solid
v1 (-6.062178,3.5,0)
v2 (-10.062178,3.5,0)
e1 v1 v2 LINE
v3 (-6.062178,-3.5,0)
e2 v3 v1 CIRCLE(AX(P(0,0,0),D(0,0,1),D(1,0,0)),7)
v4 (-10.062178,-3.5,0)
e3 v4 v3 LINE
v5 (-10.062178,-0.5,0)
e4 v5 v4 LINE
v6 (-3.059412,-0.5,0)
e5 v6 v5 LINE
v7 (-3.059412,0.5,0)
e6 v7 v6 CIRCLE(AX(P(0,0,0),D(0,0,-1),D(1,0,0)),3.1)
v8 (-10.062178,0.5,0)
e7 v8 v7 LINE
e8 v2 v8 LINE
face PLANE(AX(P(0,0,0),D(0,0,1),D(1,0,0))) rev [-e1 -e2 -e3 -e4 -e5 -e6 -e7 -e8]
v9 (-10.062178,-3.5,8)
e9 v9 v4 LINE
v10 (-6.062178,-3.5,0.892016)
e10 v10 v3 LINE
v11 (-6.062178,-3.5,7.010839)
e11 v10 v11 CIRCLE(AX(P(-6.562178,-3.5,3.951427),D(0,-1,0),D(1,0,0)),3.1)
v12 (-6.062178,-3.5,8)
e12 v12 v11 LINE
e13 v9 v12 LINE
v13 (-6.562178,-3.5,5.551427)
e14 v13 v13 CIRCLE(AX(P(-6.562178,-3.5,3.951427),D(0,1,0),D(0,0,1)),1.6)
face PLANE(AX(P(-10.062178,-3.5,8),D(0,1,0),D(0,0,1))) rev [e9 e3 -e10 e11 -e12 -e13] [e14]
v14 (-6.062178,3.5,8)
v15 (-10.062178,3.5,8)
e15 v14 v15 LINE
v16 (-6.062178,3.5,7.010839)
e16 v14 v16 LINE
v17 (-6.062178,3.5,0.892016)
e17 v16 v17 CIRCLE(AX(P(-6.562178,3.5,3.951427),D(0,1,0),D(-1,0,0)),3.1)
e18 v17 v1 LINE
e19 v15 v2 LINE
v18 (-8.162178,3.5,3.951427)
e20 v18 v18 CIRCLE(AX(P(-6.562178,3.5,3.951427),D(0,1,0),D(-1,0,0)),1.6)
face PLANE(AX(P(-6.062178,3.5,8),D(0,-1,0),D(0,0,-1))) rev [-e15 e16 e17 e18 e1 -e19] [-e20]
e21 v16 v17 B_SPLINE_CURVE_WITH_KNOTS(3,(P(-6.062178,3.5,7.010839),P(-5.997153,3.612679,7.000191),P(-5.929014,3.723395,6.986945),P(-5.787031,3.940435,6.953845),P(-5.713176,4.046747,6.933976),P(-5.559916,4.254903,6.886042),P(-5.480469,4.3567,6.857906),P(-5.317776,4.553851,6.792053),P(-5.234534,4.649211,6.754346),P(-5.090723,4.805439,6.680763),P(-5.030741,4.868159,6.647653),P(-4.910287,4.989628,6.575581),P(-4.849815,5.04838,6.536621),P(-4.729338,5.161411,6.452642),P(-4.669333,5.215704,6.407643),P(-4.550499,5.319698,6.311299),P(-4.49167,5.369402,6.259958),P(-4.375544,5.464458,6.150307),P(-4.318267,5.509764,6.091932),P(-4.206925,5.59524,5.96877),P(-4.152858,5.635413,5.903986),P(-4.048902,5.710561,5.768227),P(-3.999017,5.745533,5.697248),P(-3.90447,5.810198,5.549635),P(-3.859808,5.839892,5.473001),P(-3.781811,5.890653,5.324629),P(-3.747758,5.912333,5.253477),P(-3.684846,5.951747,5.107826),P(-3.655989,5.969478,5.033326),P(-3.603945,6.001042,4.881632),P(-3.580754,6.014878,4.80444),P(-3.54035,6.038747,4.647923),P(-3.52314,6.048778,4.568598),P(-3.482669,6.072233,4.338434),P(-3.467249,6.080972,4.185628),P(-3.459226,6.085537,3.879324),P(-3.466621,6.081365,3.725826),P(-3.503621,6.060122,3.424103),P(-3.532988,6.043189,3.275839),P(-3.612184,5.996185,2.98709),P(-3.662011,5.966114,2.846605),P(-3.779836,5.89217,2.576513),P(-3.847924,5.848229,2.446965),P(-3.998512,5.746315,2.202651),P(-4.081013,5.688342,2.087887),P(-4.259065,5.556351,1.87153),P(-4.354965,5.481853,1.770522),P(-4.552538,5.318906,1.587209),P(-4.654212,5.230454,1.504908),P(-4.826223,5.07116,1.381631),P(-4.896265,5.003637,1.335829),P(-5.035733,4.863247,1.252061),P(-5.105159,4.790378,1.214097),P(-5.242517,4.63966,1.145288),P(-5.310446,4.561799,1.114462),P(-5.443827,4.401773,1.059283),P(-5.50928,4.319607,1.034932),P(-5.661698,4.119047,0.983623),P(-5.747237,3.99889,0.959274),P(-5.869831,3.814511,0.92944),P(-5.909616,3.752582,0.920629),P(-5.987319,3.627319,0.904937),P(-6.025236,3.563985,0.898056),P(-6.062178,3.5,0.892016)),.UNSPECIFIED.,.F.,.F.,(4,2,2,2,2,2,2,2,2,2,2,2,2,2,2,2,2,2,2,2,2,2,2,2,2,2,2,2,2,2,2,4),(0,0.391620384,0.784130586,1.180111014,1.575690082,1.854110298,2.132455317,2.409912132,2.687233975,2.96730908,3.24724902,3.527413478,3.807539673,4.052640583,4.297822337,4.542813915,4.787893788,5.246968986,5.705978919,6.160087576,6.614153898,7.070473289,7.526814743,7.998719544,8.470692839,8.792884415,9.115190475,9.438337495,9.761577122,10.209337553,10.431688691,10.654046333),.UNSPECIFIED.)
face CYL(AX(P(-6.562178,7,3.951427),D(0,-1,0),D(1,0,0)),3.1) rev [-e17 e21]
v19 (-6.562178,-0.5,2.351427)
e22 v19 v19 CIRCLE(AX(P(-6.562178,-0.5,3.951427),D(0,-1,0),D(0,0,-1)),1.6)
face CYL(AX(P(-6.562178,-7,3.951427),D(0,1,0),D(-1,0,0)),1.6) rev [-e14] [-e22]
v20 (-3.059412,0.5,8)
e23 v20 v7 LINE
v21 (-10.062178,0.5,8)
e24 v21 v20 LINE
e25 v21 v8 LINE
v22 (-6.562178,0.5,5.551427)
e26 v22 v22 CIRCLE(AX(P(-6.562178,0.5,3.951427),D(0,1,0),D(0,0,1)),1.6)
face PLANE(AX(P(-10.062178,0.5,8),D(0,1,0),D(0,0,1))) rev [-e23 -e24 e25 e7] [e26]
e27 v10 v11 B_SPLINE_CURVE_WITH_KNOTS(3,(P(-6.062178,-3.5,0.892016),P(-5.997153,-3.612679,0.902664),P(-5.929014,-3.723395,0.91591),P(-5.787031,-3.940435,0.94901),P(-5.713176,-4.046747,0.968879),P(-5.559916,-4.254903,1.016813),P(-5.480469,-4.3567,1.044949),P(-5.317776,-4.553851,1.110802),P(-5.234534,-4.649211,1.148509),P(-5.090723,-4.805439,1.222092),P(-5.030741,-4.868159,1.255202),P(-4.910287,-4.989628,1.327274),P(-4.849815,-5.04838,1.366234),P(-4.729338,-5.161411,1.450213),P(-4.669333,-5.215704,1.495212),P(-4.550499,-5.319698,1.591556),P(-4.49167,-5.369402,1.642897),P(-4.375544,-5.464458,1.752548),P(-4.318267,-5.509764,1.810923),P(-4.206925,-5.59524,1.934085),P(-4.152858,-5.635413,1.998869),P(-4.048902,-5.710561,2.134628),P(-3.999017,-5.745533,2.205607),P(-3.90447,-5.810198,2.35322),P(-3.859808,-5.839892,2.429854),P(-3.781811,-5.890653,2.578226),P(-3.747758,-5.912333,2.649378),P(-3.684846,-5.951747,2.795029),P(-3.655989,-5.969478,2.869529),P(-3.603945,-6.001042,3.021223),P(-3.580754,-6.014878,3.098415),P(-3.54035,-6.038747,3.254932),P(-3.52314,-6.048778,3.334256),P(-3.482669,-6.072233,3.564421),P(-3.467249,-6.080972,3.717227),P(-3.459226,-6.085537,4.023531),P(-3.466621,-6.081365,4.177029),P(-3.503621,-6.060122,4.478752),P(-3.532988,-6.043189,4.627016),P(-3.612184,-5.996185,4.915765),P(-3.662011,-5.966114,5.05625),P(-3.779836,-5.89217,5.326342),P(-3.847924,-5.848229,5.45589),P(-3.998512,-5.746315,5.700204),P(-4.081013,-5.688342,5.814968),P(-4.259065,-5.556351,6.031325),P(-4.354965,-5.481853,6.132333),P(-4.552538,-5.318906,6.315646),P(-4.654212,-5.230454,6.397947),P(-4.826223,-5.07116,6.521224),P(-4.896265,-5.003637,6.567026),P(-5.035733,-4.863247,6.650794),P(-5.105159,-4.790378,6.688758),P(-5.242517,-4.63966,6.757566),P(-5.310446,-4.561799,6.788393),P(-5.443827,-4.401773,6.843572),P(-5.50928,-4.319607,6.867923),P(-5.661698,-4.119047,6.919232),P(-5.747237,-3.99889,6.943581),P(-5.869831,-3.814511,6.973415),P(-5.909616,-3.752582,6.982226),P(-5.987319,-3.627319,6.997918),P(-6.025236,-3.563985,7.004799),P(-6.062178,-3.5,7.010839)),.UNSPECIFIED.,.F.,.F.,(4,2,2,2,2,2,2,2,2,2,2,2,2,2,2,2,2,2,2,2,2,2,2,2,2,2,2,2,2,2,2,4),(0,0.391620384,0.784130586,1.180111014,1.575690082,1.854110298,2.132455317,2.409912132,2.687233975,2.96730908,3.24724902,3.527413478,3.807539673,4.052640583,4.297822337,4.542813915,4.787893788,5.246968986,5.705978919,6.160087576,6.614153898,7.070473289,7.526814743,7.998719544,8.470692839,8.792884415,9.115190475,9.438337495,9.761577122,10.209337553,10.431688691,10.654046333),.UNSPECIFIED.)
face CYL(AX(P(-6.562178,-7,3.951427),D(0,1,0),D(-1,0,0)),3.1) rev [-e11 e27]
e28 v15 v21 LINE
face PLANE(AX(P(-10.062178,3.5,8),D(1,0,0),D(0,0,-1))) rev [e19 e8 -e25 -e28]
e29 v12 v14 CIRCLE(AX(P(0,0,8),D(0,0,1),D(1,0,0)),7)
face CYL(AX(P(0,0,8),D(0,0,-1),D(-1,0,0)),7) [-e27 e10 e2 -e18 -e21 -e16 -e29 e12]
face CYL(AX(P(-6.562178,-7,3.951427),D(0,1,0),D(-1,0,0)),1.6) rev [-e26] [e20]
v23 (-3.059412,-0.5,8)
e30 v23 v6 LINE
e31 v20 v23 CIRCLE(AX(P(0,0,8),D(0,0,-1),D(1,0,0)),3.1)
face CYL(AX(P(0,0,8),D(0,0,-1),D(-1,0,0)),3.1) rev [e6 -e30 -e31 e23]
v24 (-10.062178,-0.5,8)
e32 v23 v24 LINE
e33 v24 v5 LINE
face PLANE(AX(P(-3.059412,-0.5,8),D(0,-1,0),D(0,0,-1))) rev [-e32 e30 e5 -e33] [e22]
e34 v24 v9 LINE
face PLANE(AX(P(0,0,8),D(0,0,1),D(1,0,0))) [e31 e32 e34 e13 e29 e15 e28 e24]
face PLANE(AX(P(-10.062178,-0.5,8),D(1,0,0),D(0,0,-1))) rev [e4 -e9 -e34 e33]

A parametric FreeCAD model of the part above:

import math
import FreeCAD as App
import Part
import Sketcher

V = App.Vector

doc = App.newDocument("Part")
body = doc.addObject("PartDesign::Body", "Body")

sketch1 = doc.addObject("Sketcher::SketchObject", "Sketch")
body.addObject(sketch1)
sketch1.AttachmentSupport = (doc.XY_Plane, [""])
sketch1.MapMode = "FlatFace"
sketch1.addGeometry(Part.LineSegment(V(-6.1, 3.5, 0), V(-10.1, 3.5, 0)), False)
sketch1.addGeometry(Part.LineSegment(V(-10.1, 3.5, 0), V(-10.1, 0.5, 0)), False)
sketch1.addGeometry(Part.LineSegment(V(-10.1, 0.5, 0), V(-3.1, 0.5, 0)), False)
sketch1.addGeometry(Part.ArcOfCircle(Part.Circle(V(0, 0, 0), V(0, 0, 1), 3.1), math.radians(-171), math.radians(171)), False)
sketch1.addGeometry(Part.LineSegment(V(-3.1, -0.5, 0), V(-10.1, -0.5, 0)), False)
sketch1.addGeometry(Part.LineSegment(V(-10.1, -0.5, 0), V(-10.1, -3.5, 0)), False)
sketch1.addGeometry(Part.LineSegment(V(-10.1, -3.5, 0), V(-6.1, -3.5, 0)), False)
sketch1.addGeometry(Part.ArcOfCircle(Part.Circle(V(0, 0, 0), V(0, 0, 1), 7), math.radians(-150), math.radians(150)), False)
sketch1.addConstraint(Sketcher.Constraint("Coincident", 0, 2, 1, 1))
sketch1.addConstraint(Sketcher.Constraint("Coincident", 1, 2, 2, 1))
sketch1.addConstraint(Sketcher.Constraint("Coincident", 2, 2, 3, 2))
sketch1.addConstraint(Sketcher.Constraint("Coincident", 3, 1, 4, 1))
sketch1.addConstraint(Sketcher.Constraint("Coincident", 4, 2, 5, 1))
sketch1.addConstraint(Sketcher.Constraint("Coincident", 5, 2, 6, 1))
sketch1.addConstraint(Sketcher.Constraint("Coincident", 6, 2, 7, 1))
sketch1.addConstraint(Sketcher.Constraint("Coincident", 7, 2, 0, 1))
sketch1.addConstraint(Sketcher.Constraint("Horizontal", 0))
sketch1.addConstraint(Sketcher.Constraint("Vertical", 1))
sketch1.addConstraint(Sketcher.Constraint("Horizontal", 2))
sketch1.addConstraint(Sketcher.Constraint("Horizontal", 4))
sketch1.addConstraint(Sketcher.Constraint("Vertical", 5))
sketch1.addConstraint(Sketcher.Constraint("Horizontal", 6))
sketch1.addConstraint(Sketcher.Constraint("Coincident", 3, 3, -1, 1))
sketch1.addConstraint(Sketcher.Constraint("Coincident", 7, 3, -1, 1))
sketch1.addConstraint(Sketcher.Constraint("Symmetric", 1, 2, 4, 2, -1))
sketch1.addConstraint(Sketcher.Constraint("Vertical", 6, 2, 7, 2))
sketch1.addConstraint(Sketcher.Constraint("Radius", 7, 7.0))
sketch1.addConstraint(Sketcher.Constraint("Radius", 3, 3.1))
sketch1.addConstraint(Sketcher.Constraint("DistanceX", 0, 2, 0, 1, 4.0))
sketch1.addConstraint(Sketcher.Constraint("DistanceY", 1, 2, 1, 1, 3.0))
sketch1.addConstraint(Sketcher.Constraint("DistanceY", 3, 1, 2, 2, 1.0))
pad1 = doc.addObject("PartDesign::Pad", "Pad")
body.addObject(pad1)
pad1.Profile = sketch1
pad1.Length = 8

sketch2 = doc.addObject("Sketcher::SketchObject", "Sketch001")
body.addObject(sketch2)
sketch2.AttachmentSupport = (doc.XZ_Plane, [""])
sketch2.MapMode = "FlatFace"
sketch2.AttachmentOffset = App.Placement(V(0, 0, -3.5), App.Rotation())
sketch2.addGeometry(Part.Circle(V(-6.6, 4, 0), V(0, 0, 1), 1.6), False)
sketch2.addConstraint(Sketcher.Constraint("Diameter", 0, 3.2))
sketch2.addConstraint(Sketcher.Constraint("DistanceX", 0, 3, -1, 1, 6.562178))
sketch2.addConstraint(Sketcher.Constraint("DistanceY", -1, 1, 0, 3, 3.951427))
pocket1 = doc.addObject("PartDesign::Pocket", "Pocket")
body.addObject(pocket1)
pocket1.Profile = sketch2
pocket1.Type = "ThroughAll"
pocket1.Reversed = True

sketch3 = doc.addObject("Sketcher::SketchObject", "Sketch002")
body.addObject(sketch3)
sketch3.AttachmentSupport = (doc.XZ_Plane, [""])
sketch3.MapMode = "FlatFace"
sketch3.AttachmentOffset = App.Placement(V(0, 0, -3.5), App.Rotation())
sketch3.addGeometry(Part.Circle(V(-6.6, 4, 0), V(0, 0, 1), 3.1), False)
sketch3.addConstraint(Sketcher.Constraint("Diameter", 0, 6.2))
sketch3.addConstraint(Sketcher.Constraint("DistanceX", 0, 3, -1, 1, 6.562178))
sketch3.addConstraint(Sketcher.Constraint("DistanceY", -1, 1, 0, 3, 3.951427))
pocket2 = doc.addObject("PartDesign::Pocket", "Pocket001")
body.addObject(pocket2)
pocket2.Profile = sketch3
pocket2.Type = "ThroughAll"

sketch4 = doc.addObject("Sketcher::SketchObject", "Sketch003")
body.addObject(sketch4)
sketch4.AttachmentSupport = (doc.XZ_Plane, [""])
sketch4.MapMode = "FlatFace"
sketch4.AttachmentOffset = App.Placement(V(0, 0, 3.5), App.Rotation())
sketch4.addGeometry(Part.Circle(V(-6.6, 4, 0), V(0, 0, 1), 3.1), False)
sketch4.addConstraint(Sketcher.Constraint("Diameter", 0, 6.2))
sketch4.addConstraint(Sketcher.Constraint("DistanceX", 0, 3, -1, 1, 6.562178))
sketch4.addConstraint(Sketcher.Constraint("DistanceY", -1, 1, 0, 3, 3.951427))
pocket3 = doc.addObject("PartDesign::Pocket", "Pocket002")
body.addObject(pocket3)
pocket3.Profile = sketch4
pocket3.Type = "ThroughAll"
pocket3.Reversed = True

doc.recompute()
